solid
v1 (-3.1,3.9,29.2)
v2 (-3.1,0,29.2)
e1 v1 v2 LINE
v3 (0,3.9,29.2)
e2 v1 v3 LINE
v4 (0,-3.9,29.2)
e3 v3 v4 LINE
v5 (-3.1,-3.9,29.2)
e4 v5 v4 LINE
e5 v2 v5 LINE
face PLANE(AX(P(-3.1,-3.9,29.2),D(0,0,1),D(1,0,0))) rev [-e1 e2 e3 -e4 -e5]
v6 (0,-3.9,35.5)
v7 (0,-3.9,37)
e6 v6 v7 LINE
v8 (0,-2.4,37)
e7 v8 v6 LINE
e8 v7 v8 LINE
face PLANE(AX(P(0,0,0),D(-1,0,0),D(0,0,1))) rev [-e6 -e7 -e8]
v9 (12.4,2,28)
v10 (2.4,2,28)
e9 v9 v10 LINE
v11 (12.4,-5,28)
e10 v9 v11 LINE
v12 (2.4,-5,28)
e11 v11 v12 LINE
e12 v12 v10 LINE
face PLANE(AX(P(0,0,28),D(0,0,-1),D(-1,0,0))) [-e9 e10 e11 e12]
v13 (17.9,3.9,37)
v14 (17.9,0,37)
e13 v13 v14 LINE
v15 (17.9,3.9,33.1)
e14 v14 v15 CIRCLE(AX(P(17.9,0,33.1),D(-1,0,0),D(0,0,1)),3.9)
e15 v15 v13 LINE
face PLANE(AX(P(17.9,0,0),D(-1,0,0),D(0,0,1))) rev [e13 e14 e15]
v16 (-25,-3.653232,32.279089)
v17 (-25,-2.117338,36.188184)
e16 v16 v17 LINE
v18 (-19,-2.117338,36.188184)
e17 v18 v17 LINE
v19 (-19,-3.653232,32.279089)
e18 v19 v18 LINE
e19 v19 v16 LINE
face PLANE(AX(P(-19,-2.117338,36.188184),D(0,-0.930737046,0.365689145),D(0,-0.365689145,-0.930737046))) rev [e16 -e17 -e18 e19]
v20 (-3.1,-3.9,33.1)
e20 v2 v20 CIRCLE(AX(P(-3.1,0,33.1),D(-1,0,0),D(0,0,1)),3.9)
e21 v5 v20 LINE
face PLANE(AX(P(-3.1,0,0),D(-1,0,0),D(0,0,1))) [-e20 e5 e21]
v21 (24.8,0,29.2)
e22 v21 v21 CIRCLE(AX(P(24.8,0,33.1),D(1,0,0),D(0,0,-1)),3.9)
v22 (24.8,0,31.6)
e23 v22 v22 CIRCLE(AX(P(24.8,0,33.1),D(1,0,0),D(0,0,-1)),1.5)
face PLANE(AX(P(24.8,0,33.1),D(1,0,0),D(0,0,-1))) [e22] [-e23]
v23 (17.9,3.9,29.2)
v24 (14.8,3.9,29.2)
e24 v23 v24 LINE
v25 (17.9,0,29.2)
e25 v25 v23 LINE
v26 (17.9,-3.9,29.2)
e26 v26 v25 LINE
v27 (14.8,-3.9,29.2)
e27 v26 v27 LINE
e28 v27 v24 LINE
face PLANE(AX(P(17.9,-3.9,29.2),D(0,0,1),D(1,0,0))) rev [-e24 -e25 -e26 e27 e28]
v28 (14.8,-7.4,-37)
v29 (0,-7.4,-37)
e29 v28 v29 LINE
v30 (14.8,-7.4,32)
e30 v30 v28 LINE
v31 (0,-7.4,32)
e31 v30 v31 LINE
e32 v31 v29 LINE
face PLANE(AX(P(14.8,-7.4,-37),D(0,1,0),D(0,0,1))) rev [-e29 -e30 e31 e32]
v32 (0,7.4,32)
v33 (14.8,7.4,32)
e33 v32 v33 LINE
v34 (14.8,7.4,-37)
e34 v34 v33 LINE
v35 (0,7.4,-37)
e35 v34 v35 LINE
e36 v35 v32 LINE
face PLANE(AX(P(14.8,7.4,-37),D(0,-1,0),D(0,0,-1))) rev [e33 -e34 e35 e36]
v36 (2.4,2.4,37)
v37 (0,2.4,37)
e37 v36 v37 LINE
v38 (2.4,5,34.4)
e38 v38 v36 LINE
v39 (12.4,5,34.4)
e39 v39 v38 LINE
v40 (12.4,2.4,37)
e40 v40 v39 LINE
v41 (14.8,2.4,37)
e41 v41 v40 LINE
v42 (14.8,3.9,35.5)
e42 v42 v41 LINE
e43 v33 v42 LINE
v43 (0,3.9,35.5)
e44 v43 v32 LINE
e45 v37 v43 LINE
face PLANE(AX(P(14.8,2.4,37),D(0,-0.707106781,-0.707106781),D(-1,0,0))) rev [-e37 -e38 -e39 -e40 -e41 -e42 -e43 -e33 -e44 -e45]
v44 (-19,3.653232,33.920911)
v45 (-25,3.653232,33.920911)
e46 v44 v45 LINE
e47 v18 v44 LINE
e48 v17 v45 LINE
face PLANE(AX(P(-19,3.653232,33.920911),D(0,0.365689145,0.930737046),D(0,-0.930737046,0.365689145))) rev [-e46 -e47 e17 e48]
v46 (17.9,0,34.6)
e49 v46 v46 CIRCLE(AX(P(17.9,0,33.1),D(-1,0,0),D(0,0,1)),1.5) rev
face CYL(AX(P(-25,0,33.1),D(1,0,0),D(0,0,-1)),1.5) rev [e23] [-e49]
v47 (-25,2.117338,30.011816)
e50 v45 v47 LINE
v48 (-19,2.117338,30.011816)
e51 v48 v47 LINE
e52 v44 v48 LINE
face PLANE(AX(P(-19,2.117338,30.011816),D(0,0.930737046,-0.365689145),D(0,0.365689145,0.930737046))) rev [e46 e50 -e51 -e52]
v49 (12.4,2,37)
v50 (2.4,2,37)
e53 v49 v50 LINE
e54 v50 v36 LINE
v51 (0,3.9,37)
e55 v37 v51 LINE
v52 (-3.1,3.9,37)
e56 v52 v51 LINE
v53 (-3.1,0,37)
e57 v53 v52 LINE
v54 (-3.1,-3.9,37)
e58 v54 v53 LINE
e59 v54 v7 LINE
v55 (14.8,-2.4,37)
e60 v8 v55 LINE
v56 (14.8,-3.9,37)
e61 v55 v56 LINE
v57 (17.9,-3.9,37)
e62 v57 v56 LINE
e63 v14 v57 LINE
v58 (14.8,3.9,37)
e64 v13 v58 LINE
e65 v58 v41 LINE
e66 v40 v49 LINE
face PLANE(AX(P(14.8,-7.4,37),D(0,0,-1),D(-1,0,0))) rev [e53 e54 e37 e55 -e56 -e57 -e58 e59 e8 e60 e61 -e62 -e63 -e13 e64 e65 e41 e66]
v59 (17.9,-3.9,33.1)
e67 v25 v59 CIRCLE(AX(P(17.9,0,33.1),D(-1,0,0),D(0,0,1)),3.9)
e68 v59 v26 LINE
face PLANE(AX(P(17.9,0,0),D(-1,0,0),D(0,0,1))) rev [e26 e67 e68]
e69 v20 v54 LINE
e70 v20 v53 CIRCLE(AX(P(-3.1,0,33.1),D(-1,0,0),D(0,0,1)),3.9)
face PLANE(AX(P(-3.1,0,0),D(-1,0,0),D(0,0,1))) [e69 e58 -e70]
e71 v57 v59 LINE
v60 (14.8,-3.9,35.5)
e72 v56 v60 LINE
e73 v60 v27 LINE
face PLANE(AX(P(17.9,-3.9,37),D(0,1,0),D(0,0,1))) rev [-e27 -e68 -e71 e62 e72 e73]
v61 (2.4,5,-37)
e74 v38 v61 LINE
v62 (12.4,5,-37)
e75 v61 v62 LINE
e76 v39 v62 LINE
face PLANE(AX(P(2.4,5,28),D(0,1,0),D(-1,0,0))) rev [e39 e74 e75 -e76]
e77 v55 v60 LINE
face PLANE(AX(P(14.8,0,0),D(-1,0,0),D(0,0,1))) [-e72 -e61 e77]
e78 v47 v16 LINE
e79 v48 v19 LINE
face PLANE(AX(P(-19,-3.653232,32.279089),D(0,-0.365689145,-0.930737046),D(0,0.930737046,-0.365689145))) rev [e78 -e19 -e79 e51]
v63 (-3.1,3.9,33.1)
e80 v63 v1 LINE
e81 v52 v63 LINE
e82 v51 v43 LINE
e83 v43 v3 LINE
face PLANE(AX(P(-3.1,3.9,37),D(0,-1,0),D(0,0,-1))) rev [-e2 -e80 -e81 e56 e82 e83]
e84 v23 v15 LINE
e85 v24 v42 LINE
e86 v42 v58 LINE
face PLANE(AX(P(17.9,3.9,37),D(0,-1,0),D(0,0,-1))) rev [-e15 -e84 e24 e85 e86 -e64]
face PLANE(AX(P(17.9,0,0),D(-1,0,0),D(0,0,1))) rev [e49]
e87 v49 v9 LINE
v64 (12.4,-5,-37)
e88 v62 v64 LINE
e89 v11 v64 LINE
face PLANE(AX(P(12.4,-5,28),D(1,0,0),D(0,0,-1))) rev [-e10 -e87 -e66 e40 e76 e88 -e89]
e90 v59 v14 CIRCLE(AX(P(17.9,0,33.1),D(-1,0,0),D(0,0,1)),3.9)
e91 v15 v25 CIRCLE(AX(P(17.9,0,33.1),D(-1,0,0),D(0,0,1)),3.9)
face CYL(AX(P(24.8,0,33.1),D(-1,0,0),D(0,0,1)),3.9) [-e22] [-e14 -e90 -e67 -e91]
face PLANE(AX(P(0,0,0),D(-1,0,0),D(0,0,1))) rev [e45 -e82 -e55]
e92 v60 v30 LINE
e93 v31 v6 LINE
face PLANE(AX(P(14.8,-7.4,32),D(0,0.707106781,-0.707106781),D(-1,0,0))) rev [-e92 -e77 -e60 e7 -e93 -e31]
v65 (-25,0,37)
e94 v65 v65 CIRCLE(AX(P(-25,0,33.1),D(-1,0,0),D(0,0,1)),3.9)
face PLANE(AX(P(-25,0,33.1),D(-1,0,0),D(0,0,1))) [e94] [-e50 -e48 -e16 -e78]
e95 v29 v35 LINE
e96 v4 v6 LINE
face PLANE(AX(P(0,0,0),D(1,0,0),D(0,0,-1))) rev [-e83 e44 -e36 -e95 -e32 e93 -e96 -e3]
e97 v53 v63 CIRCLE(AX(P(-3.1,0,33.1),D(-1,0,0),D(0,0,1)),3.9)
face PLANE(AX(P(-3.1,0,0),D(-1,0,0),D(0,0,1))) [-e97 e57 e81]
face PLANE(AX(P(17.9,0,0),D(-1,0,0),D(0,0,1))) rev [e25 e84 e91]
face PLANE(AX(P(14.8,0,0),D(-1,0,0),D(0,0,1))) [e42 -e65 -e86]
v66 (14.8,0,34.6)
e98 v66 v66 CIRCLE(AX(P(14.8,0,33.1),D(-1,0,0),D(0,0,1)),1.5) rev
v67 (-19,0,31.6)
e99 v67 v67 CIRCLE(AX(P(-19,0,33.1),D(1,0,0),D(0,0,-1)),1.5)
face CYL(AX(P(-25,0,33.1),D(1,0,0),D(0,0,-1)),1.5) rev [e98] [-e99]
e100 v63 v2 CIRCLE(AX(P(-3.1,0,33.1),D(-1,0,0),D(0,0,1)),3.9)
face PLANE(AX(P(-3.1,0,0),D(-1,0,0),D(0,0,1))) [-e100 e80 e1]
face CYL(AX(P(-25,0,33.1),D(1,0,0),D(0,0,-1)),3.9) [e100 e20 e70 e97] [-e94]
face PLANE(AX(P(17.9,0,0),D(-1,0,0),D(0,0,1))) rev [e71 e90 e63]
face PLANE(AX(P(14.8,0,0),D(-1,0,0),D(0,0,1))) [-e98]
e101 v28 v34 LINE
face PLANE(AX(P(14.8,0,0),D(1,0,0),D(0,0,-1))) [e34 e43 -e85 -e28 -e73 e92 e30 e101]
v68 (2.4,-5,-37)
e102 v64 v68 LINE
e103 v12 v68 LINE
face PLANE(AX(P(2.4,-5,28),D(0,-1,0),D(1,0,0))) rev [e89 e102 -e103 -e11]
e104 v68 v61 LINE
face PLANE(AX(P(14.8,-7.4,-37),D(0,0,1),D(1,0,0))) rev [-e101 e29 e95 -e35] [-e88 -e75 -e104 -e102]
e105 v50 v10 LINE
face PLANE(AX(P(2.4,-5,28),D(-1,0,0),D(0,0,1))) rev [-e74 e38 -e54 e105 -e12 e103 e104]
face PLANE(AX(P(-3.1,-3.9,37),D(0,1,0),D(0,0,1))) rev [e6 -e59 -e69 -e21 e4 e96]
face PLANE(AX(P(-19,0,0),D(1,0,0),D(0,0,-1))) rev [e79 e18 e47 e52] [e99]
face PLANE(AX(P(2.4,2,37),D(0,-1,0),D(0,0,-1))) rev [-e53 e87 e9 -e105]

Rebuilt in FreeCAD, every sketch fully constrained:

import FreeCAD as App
import Part
import Sketcher
from FreeCAD import Vector
Q = App.Units.Quantity


def edges_at(feature, points):
    """Names of the edges that pass closest to the given points."""
    edges = feature.Shape.Edges
    near = lambda p: min(range(len(edges)), key=lambda i: edges[i].distToShape(Part.Vertex(*p))[0])
    return sorted({f"Edge{near(p) + 1}" for p in points})

doc = App.newDocument("Part")
params = doc.addObject("Spreadsheet::Sheet", "Params")
for row, (alias, value) in enumerate([
    ("sketch1_height", "74 mm"),
    ("sketch1_width", "14.8 mm"),
    ("pad1_length", "14.8 mm"),
    ("sketch2_width", "10 mm"),
    ("pocket1_length", "65 mm"),
    ("sketch3_diameter", "7.8 mm"),
    ("pad2_length", "10 mm"),
    ("sketch4_diameter", "7.8 mm"),
    ("pad3_length", "25 mm"),
    ("chamfer_size", "5 mm"),
    ("sketch5_length", "4.2 mm"),
    ("sketch5_length2", "6.2 mm"),
    ("pocket2_length", "6 mm"),
    ("sketch6_diameter", "3 mm"),
    ("sketch7_diameter", "3 mm"),
    ("sketch7_width", "7.8 mm"),
    ("pad4_length", "3.1 mm"),
    ("sketch8_width", "7.8 mm"),
    ("pad5_length", "3.1 mm"),
    ("sketch9_width", "10 mm"),
    ("sketch9_height", "3 mm"),
], start=1):
    params.set(f"A{row}", alias)
    params.set(f"B{row}", "=" + value)
    params.setAlias(f"B{row}", alias)

body = doc.addObject("PartDesign::Body", "Body")

sketch1 = body.newObject("Sketcher::SketchObject", "Sketch")
sketch1.AttachmentSupport = (doc.getObject("YZ_Plane"), [""])
sketch1.MapMode = "FlatFace"
sketch1.addGeometry(Part.LineSegment(Vector(7, 37, 0), Vector(-7, 37, 0)), False)
sketch1.addGeometry(Part.LineSegment(Vector(-7, 37, 0), Vector(-7, -37, 0)), False)
sketch1.addGeometry(Part.LineSegment(Vector(-7, -37, 0), Vector(7, -37, 0)), False)
sketch1.addGeometry(Part.LineSegment(Vector(7, -37, 0), Vector(7, 37, 0)), False)
sketch1.addConstraint(Sketcher.Constraint("Coincident", 0, 2, 1, 1))
sketch1.addConstraint(Sketcher.Constraint("Coincident", 1, 2, 2, 1))
sketch1.addConstraint(Sketcher.Constraint("Coincident", 2, 2, 3, 1))
sketch1.addConstraint(Sketcher.Constraint("Coincident", 3, 2, 0, 1))
sketch1.addConstraint(Sketcher.Constraint("Horizontal", 0))
sketch1.addConstraint(Sketcher.Constraint("Vertical", 1))
sketch1.addConstraint(Sketcher.Constraint("Horizontal", 2))
sketch1.addConstraint(Sketcher.Constraint("Vertical", 3))
sketch1.addConstraint(Sketcher.Constraint("Symmetric", 0, 2, 2, 2, -1, 1))
sketch1.addConstraint(Sketcher.Constraint("DistanceY", 1, 2, 1, 1, Q("74 mm")))
sketch1.addConstraint(Sketcher.Constraint("DistanceX", 0, 2, 0, 1, Q("14.8 mm")))
sketch1.setExpression("Constraints[9]", "Params.sketch1_height")
sketch1.setExpression("Constraints[10]", "Params.sketch1_width")
pad1 = body.newObject("PartDesign::Pad", "Pad")
pad1.Profile = sketch1
pad1.setExpression("Length", "Params.pad1_length")

sketch2 = body.newObject("Sketcher::SketchObject", "Sketch001")
sketch2.AttachmentSupport = (doc.getObject("XY_Plane"), [""])
sketch2.MapMode = "FlatFace"
sketch2.AttachmentOffset = App.Placement(Vector(0, 0, -37), App.Rotation())
sketch2.addGeometry(Part.LineSegment(Vector(12, 5, 0), Vector(12, -5, 0)), False)
sketch2.addGeometry(Part.LineSegment(Vector(12, -5, 0), Vector(2, -5, 0)), False)
sketch2.addGeometry(Part.LineSegment(Vector(2, -5, 0), Vector(2, 5, 0)), False)
sketch2.addGeometry(Part.LineSegment(Vector(2, 5, 0), Vector(12, 5, 0)), False)
sketch2.addConstraint(Sketcher.Constraint("Coincident", 0, 2, 1, 1))
sketch2.addConstraint(Sketcher.Constraint("Coincident", 1, 2, 2, 1))
sketch2.addConstraint(Sketcher.Constraint("Coincident", 2, 2, 3, 1))
sketch2.addConstraint(Sketcher.Constraint("Coincident", 3, 2, 0, 1))
sketch2.addConstraint(Sketcher.Constraint("Vertical", 0))
sketch2.addConstraint(Sketcher.Constraint("Horizontal", 1))
sketch2.addConstraint(Sketcher.Constraint("Vertical", 2))
sketch2.addConstraint(Sketcher.Constraint("Horizontal", 3))
sketch2.addConstraint(Sketcher.Constraint("Equal", 3, 0))
sketch2.addConstraint(Sketcher.Constraint("DistanceX", 1, 2, 1, 1, Q("10 mm")))
sketch2.addConstraint(Sketcher.Constraint("DistanceY", 0, 2, -1, 1, Q("5 mm")))
sketch2.addConstraint(Sketcher.Constraint("DistanceX", -1, 1, 0, 2, Q("12.4 mm")))
sketch2.setExpression("Constraints[9]", "Params.sketch2_width")
pocket1 = body.newObject("PartDesign::Pocket", "Pocket")
pocket1.Profile = sketch2
pocket1.setExpression("Length", "Params.pocket1_length")
pocket1.Reversed = True

sketch3 = body.newObject("Sketcher::SketchObject", "Sketch002")
sketch3.AttachmentSupport = (doc.getObject("YZ_Plane"), [""])
sketch3.MapMode = "FlatFace"
sketch3.AttachmentOffset = App.Placement(Vector(0, 0, 14.8), App.Rotation())
sketch3.addGeometry(Part.Circle(Vector(0, 33.1, 0), Vector(0, 0, 1), 3.9), False)
sketch3.addConstraint(Sketcher.Constraint("PointOnObject", 0, 3, -2))
sketch3.addConstraint(Sketcher.Constraint("Diameter", 0, Q("7.8 mm")))
sketch3.addConstraint(Sketcher.Constraint("DistanceY", -1, 1, 0, 3, Q("33.1 mm")))
sketch3.setExpression("Constraints[1]", "Params.sketch3_diameter")
pad2 = body.newObject("PartDesign::Pad", "Pad001")
pad2.Profile = sketch3
pad2.setExpression("Length", "Params.pad2_length")

sketch4 = body.newObject("Sketcher::SketchObject", "Sketch003")
sketch4.AttachmentSupport = (doc.getObject("YZ_Plane"), [""])
sketch4.MapMode = "FlatFace"
sketch4.addGeometry(Part.Circle(Vector(0, 33.1, 0), Vector(0, 0, 1), 3.9), False)
sketch4.addConstraint(Sketcher.Constraint("PointOnObject", 0, 3, -2))
sketch4.addConstraint(Sketcher.Constraint("Diameter", 0, Q("7.8 mm")))
sketch4.addConstraint(Sketcher.Constraint("DistanceY", -1, 1, 0, 3, Q("33.1 mm")))
sketch4.setExpression("Constraints[1]", "Params.sketch4_diameter")
pad3 = body.newObject("PartDesign::Pad", "Pad002")
pad3.Profile = sketch4
pad3.setExpression("Length", "Params.pad3_length")
pad3.Reversed = True
doc.recompute()

chamfer = body.newObject("PartDesign::Chamfer", "Chamfer")
chamfer.Base = (pad3, edges_at(pad3, [(7.4, 7.4, 37), (7.4, -7.4, 37)]))
chamfer.setExpression("Size", "Params.chamfer_size")

sketch5 = body.newObject("Sketcher::SketchObject", "Sketch004")
sketch5.AttachmentSupport = (doc.getObject("YZ_Plane"), [""])
sketch5.MapMode = "FlatFace"
sketch5.AttachmentOffset = App.Placement(Vector(0, 0, -25), App.Rotation())
sketch5.addGeometry(Part.LineSegment(Vector(3.7, 33.9, 0), Vector(2.1, 30, 0)), False)
sketch5.addGeometry(Part.LineSegment(Vector(2.1, 30, 0), Vector(-3.7, 32.3, 0)), False)
sketch5.addGeometry(Part.LineSegment(Vector(-3.7, 32.3, 0), Vector(-2.1, 36.2, 0)), False)
sketch5.addGeometry(Part.LineSegment(Vector(-2.1, 36.2, 0), Vector(3.7, 33.9, 0)), False)
sketch5.addConstraint(Sketcher.Constraint("Coincident", 0, 2, 1, 1))
sketch5.addConstraint(Sketcher.Constraint("Coincident", 1, 2, 2, 1))
sketch5.addConstraint(Sketcher.Constraint("Coincident", 2, 2, 3, 1))
sketch5.addConstraint(Sketcher.Constraint("Coincident", 3, 2, 0, 1))
sketch5.addConstraint(Sketcher.Constraint("Perpendicular", 0, 1))
sketch5.addConstraint(Sketcher.Constraint("Perpendicular", 1, 2))
sketch5.addConstraint(Sketcher.Constraint("Perpendicular", 2, 3))
sketch5.addConstraint(Sketcher.Constraint("Distance", 0, Q("4.2 mm")))
sketch5.addConstraint(Sketcher.Constraint("Distance", 1, Q("6.2 mm")))
sketch5.addConstraint(Sketcher.Constraint("Angle", 0, Q("-111.45 deg")))
sketch5.addConstraint(Sketcher.Constraint("DistanceY", -1, 1, 1, 2, Q("32.279089 mm")))
sketch5.addConstraint(Sketcher.Constraint("DistanceX", -1, 1, 0, 2, Q("2.117338 mm")))
sketch5.setExpression("Constraints[7]", "Params.sketch5_length")
sketch5.setExpression("Constraints[8]", "Params.sketch5_length2")
pocket2 = body.newObject("PartDesign::Pocket", "Pocket001")
pocket2.Profile = sketch5
pocket2.setExpression("Length", "Params.pocket2_length")
pocket2.Reversed = True

sketch6 = body.newObject("Sketcher::SketchObject", "Sketch005")
sketch6.AttachmentSupport = (doc.getObject("YZ_Plane"), [""])
sketch6.MapMode = "FlatFace"
sketch6.AttachmentOffset = App.Placement(Vector(0, 0, 24.8), App.Rotation())
sketch6.addGeometry(Part.Circle(Vector(0, 33.1, 0), Vector(0, 0, 1), 1.5), False)
sketch6.addConstraint(Sketcher.Constraint("PointOnObject", 0, 3, -2))
sketch6.addConstraint(Sketcher.Constraint("Diameter", 0, Q("3 mm")))
sketch6.addConstraint(Sketcher.Constraint("DistanceY", -1, 1, 0, 3, Q("33.1 mm")))
sketch6.setExpression("Constraints[1]", "Params.sketch6_diameter")
pocket3 = body.newObject("PartDesign::Pocket", "Pocket002")
pocket3.Profile = sketch6
pocket3.Type = "ThroughAll"

sketch7 = body.newObject("Sketcher::SketchObject", "Sketch006")
sketch7.AttachmentSupport = (doc.getObject("YZ_Plane"), [""])
sketch7.MapMode = "FlatFace"
sketch7.addGeometry(Part.LineSegment(Vector(3.9, 29.2, 0), Vector(-3.9, 29.2, 0)), False)
sketch7.addGeometry(Part.LineSegment(Vector(-3.9, 29.2, 0), Vector(-3.9, 37, 0)), False)
sketch7.addGeometry(Part.LineSegment(Vector(-3.9, 37, 0), Vector(3.9, 37, 0)), False)
sketch7.addGeometry(Part.LineSegment(Vector(3.9, 37, 0), Vector(3.9, 29.2, 0)), False)
sketch7.addGeometry(Part.Circle(Vector(0, 33.1, 0), Vector(0, 0, 1), 1.5), False)
sketch7.addConstraint(Sketcher.Constraint("Coincident", 0, 2, 1, 1))
sketch7.addConstraint(Sketcher.Constraint("Coincident", 1, 2, 2, 1))
sketch7.addConstraint(Sketcher.Constraint("Coincident", 2, 2, 3, 1))
sketch7.addConstraint(Sketcher.Constraint("Coincident", 3, 2, 0, 1))
sketch7.addConstraint(Sketcher.Constraint("Horizontal", 0))
sketch7.addConstraint(Sketcher.Constraint("Vertical", 1))
sketch7.addConstraint(Sketcher.Constraint("Horizontal", 2))
sketch7.addConstraint(Sketcher.Constraint("Vertical", 3))
sketch7.addConstraint(Sketcher.Constraint("PointOnObject", 4, 3, -2))
sketch7.addConstraint(Sketcher.Constraint("Equal", 2, 1))
sketch7.addConstraint(Sketcher.Constraint("Diameter", 4, Q("3 mm")))
sketch7.addConstraint(Sketcher.Constraint("DistanceX", 0, 2, 0, 1, Q("7.8 mm")))
sketch7.addConstraint(Sketcher.Constraint("DistanceY", -1, 1, 1, 2, Q("37 mm")))
sketch7.addConstraint(Sketcher.Constraint("DistanceY", -1, 1, 4, 3, Q("33.1 mm")))
sketch7.addConstraint(Sketcher.Constraint("DistanceX", 0, 2, -1, 1, Q("3.9 mm")))
sketch7.setExpression("Constraints[10]", "Params.sketch7_diameter")
sketch7.setExpression("Constraints[11]", "Params.sketch7_width")
pad4 = body.newObject("PartDesign::Pad", "Pad003")
pad4.Profile = sketch7
pad4.setExpression("Length", "Params.pad4_length")
pad4.Reversed = True

sketch8 = body.newObject("Sketcher::SketchObject", "Sketch007")
sketch8.AttachmentSupport = (doc.getObject("YZ_Plane"), [""])
sketch8.MapMode = "FlatFace"
sketch8.AttachmentOffset = App.Placement(Vector(0, 0, 14.8), App.Rotation())
sketch8.addGeometry(Part.LineSegment(Vector(4, 37, 0), Vector(-4, 37, 0)), False)
sketch8.addGeometry(Part.LineSegment(Vector(-4, 37, 0), Vector(-4, 29, 0)), False)
sketch8.addGeometry(Part.LineSegment(Vector(-4, 29, 0), Vector(4, 29, 0)), False)
sketch8.addGeometry(Part.LineSegment(Vector(4, 29, 0), Vector(4, 37, 0)), False)
sketch8.addConstraint(Sketcher.Constraint("Coincident", 0, 2, 1, 1))
sketch8.addConstraint(Sketcher.Constraint("Coincident", 1, 2, 2, 1))
sketch8.addConstraint(Sketcher.Constraint("Coincident", 2, 2, 3, 1))
sketch8.addConstraint(Sketcher.Constraint("Coincident", 3, 2, 0, 1))
sketch8.addConstraint(Sketcher.Constraint("Horizontal", 0))
sketch8.addConstraint(Sketcher.Constraint("Vertical", 1))
sketch8.addConstraint(Sketcher.Constraint("Horizontal", 2))
sketch8.addConstraint(Sketcher.Constraint("Vertical", 3))
sketch8.addConstraint(Sketcher.Constraint("Equal", 2, 1))
sketch8.addConstraint(Sketcher.Constraint("DistanceX", 0, 2, 0, 1, Q("7.8 mm")))
sketch8.addConstraint(Sketcher.Constraint("DistanceY", -1, 1, 0, 2, Q("37 mm")))
sketch8.addConstraint(Sketcher.Constraint("DistanceX", 0, 2, -1, 1, Q("3.9 mm")))
sketch8.setExpression("Constraints[9]", "Params.sketch8_width")
pad5 = body.newObject("PartDesign::Pad", "Pad004")
pad5.Profile = sketch8
pad5.setExpression("Length", "Params.pad5_length")

sketch9 = body.newObject("Sketcher::SketchObject", "Sketch008")
sketch9.AttachmentSupport = (doc.getObject("XY_Plane"), [""])
sketch9.MapMode = "FlatFace"
sketch9.AttachmentOffset = App.Placement(Vector(0, 0, 28), App.Rotation())
sketch9.addGeometry(Part.LineSegment(Vector(12.4, 5, 0), Vector(12.4, 2, 0)), False)
sketch9.addGeometry(Part.LineSegment(Vector(12.4, 2, 0), Vector(2.4, 2, 0)), False)
sketch9.addGeometry(Part.LineSegment(Vector(2.4, 2, 0), Vector(2.4, 5, 0)), False)
sketch9.addGeometry(Part.LineSegment(Vector(2.4, 5, 0), Vector(12.4, 5, 0)), False)
sketch9.addConstraint(Sketcher.Constraint("Coincident", 0, 2, 1, 1))
sketch9.addConstraint(Sketcher.Constraint("Coincident", 1, 2, 2, 1))
sketch9.addConstraint(Sketcher.Constraint("Coincident", 2, 2, 3, 1))
sketch9.addConstraint(Sketcher.Constraint("Coincident", 3, 2, 0, 1))
sketch9.addConstraint(Sketcher.Constraint("Vertical", 0))
sketch9.addConstraint(Sketcher.Constraint("Horizontal", 1))
sketch9.addConstraint(Sketcher.Constraint("Vertical", 2))
sketch9.addConstraint(Sketcher.Constraint("Horizontal", 3))
sketch9.addConstraint(Sketcher.Constraint("DistanceX", 1, 2, 1, 1, Q("10 mm")))
sketch9.addConstraint(Sketcher.Constraint("DistanceY", 0, 2, 0, 1, Q("3 mm")))
sketch9.addConstraint(Sketcher.Constraint("DistanceY", -1, 1, 0, 2, Q("2 mm")))
sketch9.addConstraint(Sketcher.Constraint("DistanceX", -1, 1, 0, 2, Q("12.4 mm")))
sketch9.setExpression("Constraints[8]", "Params.sketch9_width")
sketch9.setExpression("Constraints[9]", "Params.sketch9_height")
pocket4 = body.newObject("PartDesign::Pocket", "Pocket003")
pocket4.Profile = sketch9
pocket4.Type = "ThroughAll"
pocket4.Reversed = True

doc.recompute()
